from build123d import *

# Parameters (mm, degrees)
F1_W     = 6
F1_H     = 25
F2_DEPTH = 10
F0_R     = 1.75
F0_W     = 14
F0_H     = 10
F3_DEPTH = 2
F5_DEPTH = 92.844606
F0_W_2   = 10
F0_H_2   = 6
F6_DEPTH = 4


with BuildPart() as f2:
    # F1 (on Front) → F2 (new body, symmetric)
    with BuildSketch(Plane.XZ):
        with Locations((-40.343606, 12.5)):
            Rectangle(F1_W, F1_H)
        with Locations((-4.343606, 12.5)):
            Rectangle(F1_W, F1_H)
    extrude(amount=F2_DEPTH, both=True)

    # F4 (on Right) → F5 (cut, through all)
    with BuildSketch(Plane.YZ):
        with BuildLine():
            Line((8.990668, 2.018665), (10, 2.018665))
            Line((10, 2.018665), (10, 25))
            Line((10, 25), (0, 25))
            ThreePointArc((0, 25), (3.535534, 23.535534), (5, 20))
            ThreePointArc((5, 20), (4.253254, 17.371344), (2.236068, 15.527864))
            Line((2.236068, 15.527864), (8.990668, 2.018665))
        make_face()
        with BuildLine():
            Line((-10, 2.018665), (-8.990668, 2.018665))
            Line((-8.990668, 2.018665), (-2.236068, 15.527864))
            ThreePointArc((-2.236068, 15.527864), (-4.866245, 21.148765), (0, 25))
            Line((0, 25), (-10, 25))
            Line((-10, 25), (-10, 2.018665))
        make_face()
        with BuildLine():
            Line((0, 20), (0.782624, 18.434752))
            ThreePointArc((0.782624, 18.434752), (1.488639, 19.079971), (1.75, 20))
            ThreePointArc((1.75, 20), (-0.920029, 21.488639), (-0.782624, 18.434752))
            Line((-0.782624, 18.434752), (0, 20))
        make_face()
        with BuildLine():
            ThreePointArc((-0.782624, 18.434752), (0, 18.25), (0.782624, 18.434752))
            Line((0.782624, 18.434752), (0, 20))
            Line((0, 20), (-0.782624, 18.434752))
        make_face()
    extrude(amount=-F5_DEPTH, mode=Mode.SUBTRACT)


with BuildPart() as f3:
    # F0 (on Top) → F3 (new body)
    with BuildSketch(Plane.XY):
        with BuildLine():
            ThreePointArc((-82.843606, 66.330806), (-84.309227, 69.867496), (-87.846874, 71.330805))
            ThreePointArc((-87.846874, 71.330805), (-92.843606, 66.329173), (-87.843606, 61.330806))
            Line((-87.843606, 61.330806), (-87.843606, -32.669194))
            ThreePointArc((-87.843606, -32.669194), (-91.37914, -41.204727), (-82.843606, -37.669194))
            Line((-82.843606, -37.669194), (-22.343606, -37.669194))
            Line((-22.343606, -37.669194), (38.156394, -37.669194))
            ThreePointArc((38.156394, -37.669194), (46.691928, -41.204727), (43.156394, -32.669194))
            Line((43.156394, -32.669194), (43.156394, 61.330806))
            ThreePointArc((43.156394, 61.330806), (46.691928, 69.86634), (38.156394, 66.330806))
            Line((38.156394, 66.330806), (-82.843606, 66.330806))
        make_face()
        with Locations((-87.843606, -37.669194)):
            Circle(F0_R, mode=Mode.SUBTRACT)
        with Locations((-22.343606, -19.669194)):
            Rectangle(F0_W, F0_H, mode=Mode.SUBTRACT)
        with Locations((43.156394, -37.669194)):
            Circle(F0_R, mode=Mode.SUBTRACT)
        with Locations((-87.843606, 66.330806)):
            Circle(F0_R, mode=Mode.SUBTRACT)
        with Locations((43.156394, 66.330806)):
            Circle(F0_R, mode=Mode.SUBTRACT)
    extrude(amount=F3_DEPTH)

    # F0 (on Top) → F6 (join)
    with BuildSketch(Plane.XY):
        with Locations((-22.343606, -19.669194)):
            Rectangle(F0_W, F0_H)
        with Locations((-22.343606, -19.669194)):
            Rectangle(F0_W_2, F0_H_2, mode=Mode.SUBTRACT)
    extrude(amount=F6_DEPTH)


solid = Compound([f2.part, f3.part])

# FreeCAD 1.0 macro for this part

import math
import FreeCAD as App
import Part
import Sketcher
from FreeCAD import Vector
Q = App.Units.Quantity

doc = App.newDocument("Part")
params = doc.addObject("Spreadsheet::Sheet", "Params")
for row, (alias, value) in enumerate([
    ("sketch1_width", "6 mm"),
    ("sketch1_height", "25 mm"),
    ("pad1_length", "20 mm"),
    ("sketch2_radius", "5 mm"),
    ("sketch2_width", "10 mm"),
    ("sketch2_radius2", "1.75 mm"),
    ("sketch3_radius", "5 mm"),
    ("sketch3_diameter", "3.5 mm"),
    ("sketch3_width", "121 mm"),
    ("sketch3_width2", "14 mm"),
    ("sketch3_height", "94 mm"),
    ("pad2_length", "2 mm"),
    ("sketch4_width", "14 mm"),
    ("sketch4_width2", "10 mm"),
    ("sketch4_height", "6 mm"),
    ("pad3_length", "4 mm"),
], start=1):
    params.set(f"A{row}", alias)
    params.set(f"B{row}", "=" + value)
    params.setAlias(f"B{row}", alias)

body = doc.addObject("PartDesign::Body", "Body")
body.AllowCompound = True

sketch1 = body.newObject("Sketcher::SketchObject", "Sketch")
sketch1.AttachmentSupport = (doc.getObject("XZ_Plane"), [""])
sketch1.MapMode = "FlatFace"
sketch1.addGeometry(Part.LineSegment(Vector(-43.343606, 25, 0), Vector(-43.343606, 0, 0)), False)
sketch1.addGeometry(Part.LineSegment(Vector(-43.343606, 0, 0), Vector(-37.343606, 0, 0)), False)
sketch1.addGeometry(Part.LineSegment(Vector(-37.343606, 0, 0), Vector(-37.343606, 25, 0)), False)
sketch1.addGeometry(Part.LineSegment(Vector(-37.343606, 25, 0), Vector(-43.343606, 25, 0)), False)
sketch1.addGeometry(Part.LineSegment(Vector(-7.343606, 25, 0), Vector(-7.343606, 0, 0)), False)
sketch1.addGeometry(Part.LineSegment(Vector(-7.343606, 0, 0), Vector(-1.343606, 0, 0)), False)
sketch1.addGeometry(Part.LineSegment(Vector(-1.343606, 0, 0), Vector(-1.343606, 25, 0)), False)
sketch1.addGeometry(Part.LineSegment(Vector(-1.343606, 25, 0), Vector(-7.343606, 25, 0)), False)
sketch1.addConstraint(Sketcher.Constraint("Coincident", 0, 2, 1, 1))
sketch1.addConstraint(Sketcher.Constraint("Coincident", 1, 2, 2, 1))
sketch1.addConstraint(Sketcher.Constraint("Coincident", 2, 2, 3, 1))
sketch1.addConstraint(Sketcher.Constraint("Coincident", 3, 2, 0, 1))
sketch1.addConstraint(Sketcher.Constraint("Coincident", 4, 2, 5, 1))
sketch1.addConstraint(Sketcher.Constraint("Coincident", 5, 2, 6, 1))
sketch1.addConstraint(Sketcher.Constraint("Coincident", 6, 2, 7, 1))
sketch1.addConstraint(Sketcher.Constraint("Coincident", 7, 2, 4, 1))
sketch1.addConstraint(Sketcher.Constraint("Vertical", 0))
sketch1.addConstraint(Sketcher.Constraint("Horizontal", 1))
sketch1.addConstraint(Sketcher.Constraint("Vertical", 2))
sketch1.addConstraint(Sketcher.Constraint("Horizontal", 3))
sketch1.addConstraint(Sketcher.Constraint("Vertical", 4))
sketch1.addConstraint(Sketcher.Constraint("Horizontal", 5))
sketch1.addConstraint(Sketcher.Constraint("Vertical", 6))
sketch1.addConstraint(Sketcher.Constraint("Horizontal", 7))
sketch1.addConstraint(Sketcher.Constraint("PointOnObject", 0, 2, -1))
sketch1.addConstraint(Sketcher.Constraint("PointOnObject", 4, 2, -1))
sketch1.addConstraint(Sketcher.Constraint("Horizontal", 3, 2, 6, 2))
sketch1.addConstraint(Sketcher.Constraint("Equal", 3, 5))
sketch1.addConstraint(Sketcher.Constraint("DistanceX", 1, 1, 1, 2, Q("6 mm")))
sketch1.addConstraint(Sketcher.Constraint("DistanceY", 0, 2, 0, 1, Q("25 mm")))
sketch1.addConstraint(Sketcher.Constraint("DistanceX", 1, 2, 4, 2, Q("30 mm")))
sketch1.addConstraint(Sketcher.Constraint("DistanceX", 0, 2, -1, 1, Q("43.343606 mm")))
sketch1.setExpression("Constraints[20]", "Params.sketch1_width")
sketch1.setExpression("Constraints[21]", "Params.sketch1_height")
pad1 = body.newObject("PartDesign::Pad", "Pad")
pad1.Profile = sketch1
pad1.setExpression("Length", "Params.pad1_length")
pad1.Midplane = True

sketch2 = body.newObject("Sketcher::SketchObject", "Sketch001")
sketch2.AttachmentSupport = (doc.getObject("YZ_Plane"), [""])
sketch2.MapMode = "FlatFace"
sketch2.addGeometry(Part.LineSegment(Vector(8.990668, 2.018665, 0), Vector(10, 2.018665, 0)), False)
sketch2.addGeometry(Part.LineSegment(Vector(10, 2.018665, 0), Vector(10, 25, 0)), False)
sketch2.addGeometry(Part.LineSegment(Vector(10, 25, 0), Vector(0, 25, 0)), False)
sketch2.addGeometry(Part.ArcOfCircle(Part.Circle(Vector(0, 20, 0), Vector(0, 0, 1), 5), math.radians(-0.000004), math.radians(90.000004)), False)
sketch2.addGeometry(Part.ArcOfCircle(Part.Circle(Vector(0.000001, 19.999999, 0), Vector(0, 0, 1), 4.999999), math.radians(-63.434955), math.radians(0.000007)), False)
sketch2.addGeometry(Part.LineSegment(Vector(2.236068, 15.527864, 0), Vector(8.990668, 2.018665, 0)), False)
sketch2.addGeometry(Part.LineSegment(Vector(-10, 2.018665, 0), Vector(-8.990668, 2.018665, 0)), False)
sketch2.addGeometry(Part.LineSegment(Vector(-8.990668, 2.018665, 0), Vector(-2.236068, 15.527864, 0)), False)
sketch2.addGeometry(Part.ArcOfCircle(Part.Circle(Vector(0, 20, 0), Vector(0, 0, 1), 5), math.radians(89.999998), math.radians(243.43495)), False)
sketch2.addGeometry(Part.LineSegment(Vector(0, 25, 0), Vector(-10, 25, 0)), False)
sketch2.addGeometry(Part.LineSegment(Vector(-10, 25, 0), Vector(-10, 2.018665, 0)), False)
sketch2.addGeometry(Part.ArcOfCircle(Part.Circle(Vector(-0.000002, 20.000001, 0), Vector(0, 0, 1), 1.750002), math.radians(-63.434891), math.radians(-0.000033)), False)
sketch2.addGeometry(Part.ArcOfCircle(Part.Circle(Vector(0, 20, 0), Vector(0, 0, 1), 1.75), math.radians(0.000012), math.radians(243.434946)), False)
sketch2.addGeometry(Part.ArcOfCircle(Part.Circle(Vector(0, 20.000004, 0), Vector(0, 0, 1), 1.750004), math.radians(-116.564987), math.radians(-63.435013)), False)
sketch2.addConstraint(Sketcher.Constraint("Coincident", 0, 2, 1, 1))
sketch2.addConstraint(Sketcher.Constraint("Coincident", 1, 2, 2, 1))
sketch2.addConstraint(Sketcher.Constraint("Tangent", 2, 2, 3, 2))
sketch2.addConstraint(Sketcher.Constraint("Tangent", 3, 1, 4, 2))
sketch2.addConstraint(Sketcher.Constraint("Coincident", 4, 1, 5, 1))
sketch2.addConstraint(Sketcher.Constraint("Coincident", 5, 2, 0, 1))
sketch2.addConstraint(Sketcher.Constraint("Coincident", 6, 2, 7, 1))
sketch2.addConstraint(Sketcher.Constraint("Coincident", 7, 2, 8, 2))
sketch2.addConstraint(Sketcher.Constraint("Tangent", 8, 1, 9, 1))
sketch2.addConstraint(Sketcher.Constraint("Coincident", 9, 2, 10, 1))
sketch2.addConstraint(Sketcher.Constraint("Coincident", 10, 2, 6, 1))
sketch2.addConstraint(Sketcher.Constraint("Tangent", 11, 2, 12, 1))
sketch2.addConstraint(Sketcher.Constraint("Tangent", 12, 2, 13, 1))
sketch2.addConstraint(Sketcher.Constraint("Coincident", 13, 2, 11, 1))
sketch2.addConstraint(Sketcher.Constraint("Horizontal", 0))
sketch2.addConstraint(Sketcher.Constraint("Vertical", 1))
sketch2.addConstraint(Sketcher.Constraint("Horizontal", 2))
sketch2.addConstraint(Sketcher.Constraint("Horizontal", 6))
sketch2.addConstraint(Sketcher.Constraint("Horizontal", 9))
sketch2.addConstraint(Sketcher.Constraint("Vertical", 10))
sketch2.addConstraint(Sketcher.Constraint("Coincident", 8, 3, 3, 3))
sketch2.addConstraint(Sketcher.Constraint("Coincident", 11, 3, 3, 3))
sketch2.addConstraint(Sketcher.Constraint("Equal", 3, 4))
sketch2.addConstraint(Sketcher.Constraint("Equal", 4, 8))
sketch2.addConstraint(Sketcher.Constraint("Equal", 11, 13))
sketch2.addConstraint(Sketcher.Constraint("Symmetric", 5, 2, 6, 2, -2))
sketch2.addConstraint(Sketcher.Constraint("Symmetric", 4, 1, 7, 2, -2))
sketch2.addConstraint(Sketcher.Constraint("Horizontal", 12, 3, 3, 1))
sketch2.addConstraint(Sketcher.Constraint("Horizontal", 3, 1, 11, 2))
sketch2.addConstraint(Sketcher.Constraint("Horizontal", 12, 2, 13, 2))
sketch2.addConstraint(Sketcher.Constraint("Equal", 0, 6))
sketch2.addConstraint(Sketcher.Constraint("Radius", 3, Q("5 mm")))
sketch2.addConstraint(Sketcher.Constraint("DistanceX", 2, 2, 2, 1, Q("10 mm")))
sketch2.addConstraint(Sketcher.Constraint("Radius", 12, Q("1.75 mm")))
sketch2.addConstraint(Sketcher.Constraint("DistanceY", -1, 1, 3, 3, Q("20 mm")))
sketch2.addConstraint(Sketcher.Constraint("DistanceX", 4, 1, 5, 2, Q("6.7546 mm")))
sketch2.addConstraint(Sketcher.Constraint("DistanceY", 5, 2, 4, 1, Q("13.509199 mm")))
sketch2.addConstraint(Sketcher.Constraint("DistanceX", 0, 1, 0, 2, Q("1.009332 mm")))
sketch2.addConstraint(Sketcher.Constraint("DistanceY", -1, 1, 12, 2, Q("18.434752 mm")))
sketch2.setExpression("Constraints[31]", "Params.sketch2_radius")
sketch2.setExpression("Constraints[32]", "Params.sketch2_width")
sketch2.setExpression("Constraints[33]", "Params.sketch2_radius2")
pocket1 = body.newObject("PartDesign::Pocket", "Pocket")
pocket1.Profile = sketch2
pocket1.Type = "ThroughAll"
body2 = doc.addObject("PartDesign::Body", "Body001")

sketch3 = body2.newObject("Sketcher::SketchObject", "Sketch002")
sketch3.AttachmentSupport = (doc.getObject("XY_Plane001"), [""])
sketch3.MapMode = "FlatFace"
sketch3.addGeometry(Part.ArcOfCircle(Part.Circle(Vector(-87.843603, 66.330809, 0), Vector(0, 0, 1), 4.999997), math.radians(-0.00003), math.radians(90.037478)), False)
sketch3.addGeometry(Part.ArcOfCircle(Part.Circle(Vector(-87.843606, 66.330806, 0), Vector(0, 0, 1), 5), math.radians(90.037446), math.radians(270.000003)), False)
sketch3.addGeometry(Part.LineSegment(Vector(-87.843606, 61.330806, 0), Vector(-87.843606, -32.669194, 0)), False)
sketch3.addGeometry(Part.ArcOfCircle(Part.Circle(Vector(-87.843606, -37.669194, 0), Vector(0, 0, 1), 5), math.radians(90.000003), math.radians(359.999997)), False)
sketch3.addGeometry(Part.LineSegment(Vector(-82.843606, -37.669194, 0), Vector(38.156394, -37.669194, 0)), False)
sketch3.addGeometry(Part.ArcOfCircle(Part.Circle(Vector(43.156394, -37.669194, 0), Vector(0, 0, 1), 5), math.radians(-179.999997), math.radians(89.999997)), False)
sketch3.addGeometry(Part.LineSegment(Vector(43.156394, -32.669194, 0), Vector(43.156394, 61.330806, 0)), False)
sketch3.addGeometry(Part.ArcOfCircle(Part.Circle(Vector(43.156394, 66.330806, 0), Vector(0, 0, 1), 5), math.radians(-90.000001), math.radians(180.000001)), False)
sketch3.addGeometry(Part.LineSegment(Vector(38.156394, 66.330806, 0), Vector(-82.843606, 66.330806, 0)), False)
sketch3.addGeometry(Part.Circle(Vector(-87.843606, -37.669194, 0), Vector(0, 0, 1), 1.75), False)
sketch3.addGeometry(Part.LineSegment(Vector(-15.343606, -24.669194, 0), Vector(-29.343606, -24.669194, 0)), False)
sketch3.addGeometry(Part.LineSegment(Vector(-29.343606, -24.669194, 0), Vector(-29.343606, -14.669194, 0)), False)
sketch3.addGeometry(Part.LineSegment(Vector(-29.343606, -14.669194, 0), Vector(-15.343606, -14.669194, 0)), False)
sketch3.addGeometry(Part.LineSegment(Vector(-15.343606, -14.669194, 0), Vector(-15.343606, -24.669194, 0)), False)
sketch3.addGeometry(Part.Circle(Vector(43.156394, -37.669194, 0), Vector(0, 0, 1), 1.75), False)
sketch3.addGeometry(Part.Circle(Vector(-87.843606, 66.330806, 0), Vector(0, 0, 1), 1.75), False)
sketch3.addGeometry(Part.Circle(Vector(43.156394, 66.330806, 0), Vector(0, 0, 1), 1.75), False)
sketch3.addConstraint(Sketcher.Constraint("Tangent", 0, 2, 1, 1))
sketch3.addConstraint(Sketcher.Constraint("Coincident", 1, 2, 2, 1))
sketch3.addConstraint(Sketcher.Constraint("Coincident", 2, 2, 3, 1))
sketch3.addConstraint(Sketcher.Constraint("Coincident", 3, 2, 4, 1))
sketch3.addConstraint(Sketcher.Constraint("Coincident", 4, 2, 5, 1))
sketch3.addConstraint(Sketcher.Constraint("Coincident", 5, 2, 6, 1))
sketch3.addConstraint(Sketcher.Constraint("Coincident", 6, 2, 7, 1))
sketch3.addConstraint(Sketcher.Constraint("Coincident", 7, 2, 8, 1))
sketch3.addConstraint(Sketcher.Constraint("Coincident", 8, 2, 0, 1))
sketch3.addConstraint(Sketcher.Constraint("Coincident", 10, 2, 11, 1))
sketch3.addConstraint(Sketcher.Constraint("Coincident", 11, 2, 12, 1))
sketch3.addConstraint(Sketcher.Constraint("Coincident", 12, 2, 13, 1))
sketch3.addConstraint(Sketcher.Constraint("Coincident", 13, 2, 10, 1))
sketch3.addConstraint(Sketcher.Constraint("Vertical", 2))
sketch3.addConstraint(Sketcher.Constraint("Horizontal", 4))
sketch3.addConstraint(Sketcher.Constraint("Vertical", 6))
sketch3.addConstraint(Sketcher.Constraint("Horizontal", 8))
sketch3.addConstraint(Sketcher.Constraint("Horizontal", 10))
sketch3.addConstraint(Sketcher.Constraint("Vertical", 11))
sketch3.addConstraint(Sketcher.Constraint("Horizontal", 12))
sketch3.addConstraint(Sketcher.Constraint("Vertical", 13))
sketch3.addConstraint(Sketcher.Constraint("Coincident", 9, 3, 3, 3))
sketch3.addConstraint(Sketcher.Constraint("Coincident", 14, 3, 5, 3))
sketch3.addConstraint(Sketcher.Constraint("Coincident", 15, 3, 0, 3))
sketch3.addConstraint(Sketcher.Constraint("Coincident", 16, 3, 7, 3))
sketch3.addConstraint(Sketcher.Constraint("Equal", 1, 3))
sketch3.addConstraint(Sketcher.Constraint("Equal", 3, 5))
sketch3.addConstraint(Sketcher.Constraint("Equal", 5, 7))
sketch3.addConstraint(Sketcher.Constraint("Equal", 9, 14))
sketch3.addConstraint(Sketcher.Constraint("Equal", 14, 15))
sketch3.addConstraint(Sketcher.Constraint("Equal", 15, 16))
sketch3.addConstraint(Sketcher.Constraint("Horizontal", 3, 3, 5, 3))
sketch3.addConstraint(Sketcher.Constraint("Horizontal", 1, 3, 7, 3))
sketch3.addConstraint(Sketcher.Constraint("Horizontal", 7, 3, 15, 3))
sketch3.addConstraint(Sketcher.Constraint("Horizontal", 14, 3, 3, 2))
sketch3.addConstraint(Sketcher.Constraint("Horizontal", 16, 3, 7, 2))
sketch3.addConstraint(Sketcher.Constraint("Vertical", 1, 3, 3, 3))
sketch3.addConstraint(Sketcher.Constraint("Vertical", 5, 3, 7, 3))
sketch3.addConstraint(Sketcher.Constraint("Vertical", 15, 3, 1, 2))
sketch3.addConstraint(Sketcher.Constraint("Vertical", 16, 3, 5, 2))
sketch3.addConstraint(Sketcher.Constraint("Radius", 1, Q("5 mm")))
sketch3.addConstraint(Sketcher.Constraint("Diameter", 9, Q("3.5 mm")))
sketch3.addConstraint(Sketcher.Constraint("DistanceX", 4, 1, 4, 2, Q("121 mm")))
sketch3.addConstraint(Sketcher.Constraint("DistanceX", 10, 2, 10, 1, Q("14 mm")))
sketch3.addConstraint(Sketcher.Constraint("DistanceY", 2, 2, 2, 1, Q("94 mm")))
sketch3.addConstraint(Sketcher.Constraint("DistanceY", 11, 1, 11, 2, Q("10 mm")))
sketch3.addConstraint(Sketcher.Constraint("DistanceY", 3, 2, 10, 2, Q("13 mm")))
sketch3.addConstraint(Sketcher.Constraint("DistanceX", 3, 2, 10, 2, Q("53.5 mm")))
sketch3.addConstraint(Sketcher.Constraint("DistanceY", -1, 1, 0, 3, Q("66.330809 mm")))
sketch3.addConstraint(Sketcher.Constraint("DistanceX", 0, 2, 0, 3, Q("0.003271 mm")))
sketch3.addConstraint(Sketcher.Constraint("DistanceX", 0, 3, -1, 1, Q("87.843603 mm")))
sketch3.setExpression("Constraints[40]", "Params.sketch3_radius")
sketch3.setExpression("Constraints[41]", "Params.sketch3_diameter")
sketch3.setExpression("Constraints[42]", "Params.sketch3_width")
sketch3.setExpression("Constraints[43]", "Params.sketch3_width2")
sketch3.setExpression("Constraints[44]", "Params.sketch3_height")
pad2 = body2.newObject("PartDesign::Pad", "Pad001")
pad2.Profile = sketch3
pad2.setExpression("Length", "Params.pad2_length")

sketch4 = body2.newObject("Sketcher::SketchObject", "Sketch003")
sketch4.AttachmentSupport = (doc.getObject("XY_Plane001"), [""])
sketch4.MapMode = "FlatFace"
sketch4.addGeometry(Part.LineSegment(Vector(-29.343606, -14.669194, 0), Vector(-29.343606, -24.669194, 0)), False)
sketch4.addGeometry(Part.LineSegment(Vector(-29.343606, -24.669194, 0), Vector(-15.343606, -24.669194, 0)), False)
sketch4.addGeometry(Part.LineSegment(Vector(-15.343606, -24.669194, 0), Vector(-15.343606, -14.669194, 0)), False)
sketch4.addGeometry(Part.LineSegment(Vector(-15.343606, -14.669194, 0), Vector(-29.343606, -14.669194, 0)), False)
sketch4.addGeometry(Part.LineSegment(Vector(-17.343606, -22.669194, 0), Vector(-27.343606, -22.669194, 0)), False)
sketch4.addGeometry(Part.LineSegment(Vector(-27.343606, -22.669194, 0), Vector(-27.343606, -16.669194, 0)), False)
sketch4.addGeometry(Part.LineSegment(Vector(-27.343606, -16.669194, 0), Vector(-17.343606, -16.669194, 0)), False)
sketch4.addGeometry(Part.LineSegment(Vector(-17.343606, -16.669194, 0), Vector(-17.343606, -22.669194, 0)), False)
sketch4.addConstraint(Sketcher.Constraint("Coincident", 0, 2, 1, 1))
sketch4.addConstraint(Sketcher.Constraint("Coincident", 1, 2, 2, 1))
sketch4.addConstraint(Sketcher.Constraint("Coincident", 2, 2, 3, 1))
sketch4.addConstraint(Sketcher.Constraint("Coincident", 3, 2, 0, 1))
sketch4.addConstraint(Sketcher.Constraint("Coincident", 4, 2, 5, 1))
sketch4.addConstraint(Sketcher.Constraint("Coincident", 5, 2, 6, 1))
sketch4.addConstraint(Sketcher.Constraint("Coincident", 6, 2, 7, 1))
sketch4.addConstraint(Sketcher.Constraint("Coincident", 7, 2, 4, 1))
sketch4.addConstraint(Sketcher.Constraint("Vertical", 0))
sketch4.addConstraint(Sketcher.Constraint("Horizontal", 1))
sketch4.addConstraint(Sketcher.Constraint("Vertical", 2))
sketch4.addConstraint(Sketcher.Constraint("Horizontal", 3))
sketch4.addConstraint(Sketcher.Constraint("Horizontal", 4))
sketch4.addConstraint(Sketcher.Constraint("Vertical", 5))
sketch4.addConstraint(Sketcher.Constraint("Horizontal", 6))
sketch4.addConstraint(Sketcher.Constraint("Vertical", 7))
sketch4.addConstraint(Sketcher.Constraint("Equal", 6, 0))
sketch4.addConstraint(Sketcher.Constraint("DistanceX", 1, 1, 1, 2, Q("14 mm")))
sketch4.addConstraint(Sketcher.Constraint("DistanceX", 4, 2, 4, 1, Q("10 mm")))
sketch4.addConstraint(Sketcher.Constraint("DistanceY", 5, 1, 5, 2, Q("6 mm")))
sketch4.addConstraint(Sketcher.Constraint("DistanceX", 0, 2, 4, 2, Q("2 mm")))
sketch4.addConstraint(Sketcher.Constraint("DistanceY", 0, 2, 4, 2, Q("2 mm")))
sketch4.addConstraint(Sketcher.Constraint("DistanceX", 0, 2, -1, 1, Q("29.343606 mm")))
sketch4.addConstraint(Sketcher.Constraint("DistanceY", 0, 2, -1, 1, Q("24.669194 mm")))
sketch4.setExpression("Constraints[17]", "Params.sketch4_width")
sketch4.setExpression("Constraints[18]", "Params.sketch4_width2")
sketch4.setExpression("Constraints[19]", "Params.sketch4_height")
pad3 = body2.newObject("PartDesign::Pad", "Pad002")
pad3.Profile = sketch4
pad3.setExpression("Length", "Params.pad3_length")

doc.recompute()
